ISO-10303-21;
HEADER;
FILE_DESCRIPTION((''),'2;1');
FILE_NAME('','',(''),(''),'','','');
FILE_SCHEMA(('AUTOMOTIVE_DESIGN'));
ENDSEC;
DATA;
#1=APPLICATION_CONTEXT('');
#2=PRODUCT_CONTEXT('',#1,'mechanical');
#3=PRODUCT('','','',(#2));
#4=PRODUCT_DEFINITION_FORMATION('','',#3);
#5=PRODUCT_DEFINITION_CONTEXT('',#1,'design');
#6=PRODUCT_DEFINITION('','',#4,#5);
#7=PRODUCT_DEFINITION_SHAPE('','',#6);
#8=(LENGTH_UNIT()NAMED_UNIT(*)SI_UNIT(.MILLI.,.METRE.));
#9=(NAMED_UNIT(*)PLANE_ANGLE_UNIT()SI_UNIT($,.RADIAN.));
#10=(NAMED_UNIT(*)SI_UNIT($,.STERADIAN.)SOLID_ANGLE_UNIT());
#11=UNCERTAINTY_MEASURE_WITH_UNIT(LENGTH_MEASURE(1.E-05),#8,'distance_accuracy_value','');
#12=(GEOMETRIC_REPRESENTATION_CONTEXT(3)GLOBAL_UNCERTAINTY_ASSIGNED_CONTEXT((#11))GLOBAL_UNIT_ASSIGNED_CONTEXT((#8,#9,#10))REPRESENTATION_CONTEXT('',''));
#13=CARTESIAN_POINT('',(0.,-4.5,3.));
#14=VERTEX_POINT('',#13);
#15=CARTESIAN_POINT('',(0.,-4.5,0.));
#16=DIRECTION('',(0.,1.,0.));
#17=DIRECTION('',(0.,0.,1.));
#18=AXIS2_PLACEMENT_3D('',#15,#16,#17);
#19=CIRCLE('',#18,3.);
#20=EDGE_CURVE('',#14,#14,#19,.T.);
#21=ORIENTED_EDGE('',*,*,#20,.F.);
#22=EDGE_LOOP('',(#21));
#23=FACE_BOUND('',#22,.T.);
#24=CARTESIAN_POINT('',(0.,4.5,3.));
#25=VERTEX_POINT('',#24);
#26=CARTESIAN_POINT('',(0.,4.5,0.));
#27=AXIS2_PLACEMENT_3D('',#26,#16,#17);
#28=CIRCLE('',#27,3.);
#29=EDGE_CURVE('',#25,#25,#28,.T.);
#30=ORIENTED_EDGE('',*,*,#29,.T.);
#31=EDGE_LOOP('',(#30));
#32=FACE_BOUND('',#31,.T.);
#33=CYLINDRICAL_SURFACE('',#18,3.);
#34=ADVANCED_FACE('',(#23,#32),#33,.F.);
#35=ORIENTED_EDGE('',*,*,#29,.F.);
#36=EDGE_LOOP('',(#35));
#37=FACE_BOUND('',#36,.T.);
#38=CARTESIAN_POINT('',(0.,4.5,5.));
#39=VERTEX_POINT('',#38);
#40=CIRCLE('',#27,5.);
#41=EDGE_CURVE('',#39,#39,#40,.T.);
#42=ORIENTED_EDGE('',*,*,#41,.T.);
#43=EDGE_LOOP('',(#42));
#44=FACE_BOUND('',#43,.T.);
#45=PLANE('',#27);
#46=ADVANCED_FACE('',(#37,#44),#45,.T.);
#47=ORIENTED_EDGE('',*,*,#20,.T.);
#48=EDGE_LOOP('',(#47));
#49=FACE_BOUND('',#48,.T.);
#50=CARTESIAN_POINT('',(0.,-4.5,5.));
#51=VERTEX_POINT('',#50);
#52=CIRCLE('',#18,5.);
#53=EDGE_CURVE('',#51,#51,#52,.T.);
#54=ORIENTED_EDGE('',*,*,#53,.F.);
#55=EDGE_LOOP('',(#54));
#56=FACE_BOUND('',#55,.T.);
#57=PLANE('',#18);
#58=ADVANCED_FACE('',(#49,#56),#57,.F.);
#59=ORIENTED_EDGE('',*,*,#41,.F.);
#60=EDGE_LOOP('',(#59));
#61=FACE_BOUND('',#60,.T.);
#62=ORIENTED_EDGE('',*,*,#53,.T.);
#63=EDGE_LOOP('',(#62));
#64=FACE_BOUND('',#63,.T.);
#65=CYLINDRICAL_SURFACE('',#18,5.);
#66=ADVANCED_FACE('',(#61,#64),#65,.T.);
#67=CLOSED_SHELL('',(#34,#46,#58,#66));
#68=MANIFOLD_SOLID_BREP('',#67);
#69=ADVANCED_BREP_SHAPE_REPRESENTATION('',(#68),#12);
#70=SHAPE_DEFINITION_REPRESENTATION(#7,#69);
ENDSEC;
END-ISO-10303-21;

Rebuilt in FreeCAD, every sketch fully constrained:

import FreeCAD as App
import Part
import Sketcher
from FreeCAD import Vector
Q = App.Units.Quantity

doc = App.newDocument("Part")
body = doc.addObject("PartDesign::Body", "Body")

sketch1 = doc.addObject("Sketcher::SketchObject", "Sketch")
body.addObject(sketch1)
sketch1.AttachmentSupport = (doc.XZ_Plane, [""])
sketch1.MapMode = "FlatFace"
sketch1.addGeometry([
    Part.Circle(Vector(0, 0, 0), Vector(0, 0, 1), 5),
    Part.Circle(Vector(0, 0, 0), Vector(0, 0, 1), 3),
], False)
sketch1.addConstraint([
    Sketcher.Constraint("Coincident", 0, 3, -1, 1),
    Sketcher.Constraint("Coincident", 1, 3, -1, 1),
    Sketcher.Constraint("Diameter", 0, Q("10 mm")),
    Sketcher.Constraint("Diameter", 1, Q("6 mm")),
])
pad1 = doc.addObject("PartDesign::Pad", "Pad")
body.addObject(pad1)
pad1.Profile = sketch1
pad1.Type = "TwoLengths"
pad1.Length = 4.5
pad1.Length2 = 4.5
pad1.Reversed = True

doc.recompute()
